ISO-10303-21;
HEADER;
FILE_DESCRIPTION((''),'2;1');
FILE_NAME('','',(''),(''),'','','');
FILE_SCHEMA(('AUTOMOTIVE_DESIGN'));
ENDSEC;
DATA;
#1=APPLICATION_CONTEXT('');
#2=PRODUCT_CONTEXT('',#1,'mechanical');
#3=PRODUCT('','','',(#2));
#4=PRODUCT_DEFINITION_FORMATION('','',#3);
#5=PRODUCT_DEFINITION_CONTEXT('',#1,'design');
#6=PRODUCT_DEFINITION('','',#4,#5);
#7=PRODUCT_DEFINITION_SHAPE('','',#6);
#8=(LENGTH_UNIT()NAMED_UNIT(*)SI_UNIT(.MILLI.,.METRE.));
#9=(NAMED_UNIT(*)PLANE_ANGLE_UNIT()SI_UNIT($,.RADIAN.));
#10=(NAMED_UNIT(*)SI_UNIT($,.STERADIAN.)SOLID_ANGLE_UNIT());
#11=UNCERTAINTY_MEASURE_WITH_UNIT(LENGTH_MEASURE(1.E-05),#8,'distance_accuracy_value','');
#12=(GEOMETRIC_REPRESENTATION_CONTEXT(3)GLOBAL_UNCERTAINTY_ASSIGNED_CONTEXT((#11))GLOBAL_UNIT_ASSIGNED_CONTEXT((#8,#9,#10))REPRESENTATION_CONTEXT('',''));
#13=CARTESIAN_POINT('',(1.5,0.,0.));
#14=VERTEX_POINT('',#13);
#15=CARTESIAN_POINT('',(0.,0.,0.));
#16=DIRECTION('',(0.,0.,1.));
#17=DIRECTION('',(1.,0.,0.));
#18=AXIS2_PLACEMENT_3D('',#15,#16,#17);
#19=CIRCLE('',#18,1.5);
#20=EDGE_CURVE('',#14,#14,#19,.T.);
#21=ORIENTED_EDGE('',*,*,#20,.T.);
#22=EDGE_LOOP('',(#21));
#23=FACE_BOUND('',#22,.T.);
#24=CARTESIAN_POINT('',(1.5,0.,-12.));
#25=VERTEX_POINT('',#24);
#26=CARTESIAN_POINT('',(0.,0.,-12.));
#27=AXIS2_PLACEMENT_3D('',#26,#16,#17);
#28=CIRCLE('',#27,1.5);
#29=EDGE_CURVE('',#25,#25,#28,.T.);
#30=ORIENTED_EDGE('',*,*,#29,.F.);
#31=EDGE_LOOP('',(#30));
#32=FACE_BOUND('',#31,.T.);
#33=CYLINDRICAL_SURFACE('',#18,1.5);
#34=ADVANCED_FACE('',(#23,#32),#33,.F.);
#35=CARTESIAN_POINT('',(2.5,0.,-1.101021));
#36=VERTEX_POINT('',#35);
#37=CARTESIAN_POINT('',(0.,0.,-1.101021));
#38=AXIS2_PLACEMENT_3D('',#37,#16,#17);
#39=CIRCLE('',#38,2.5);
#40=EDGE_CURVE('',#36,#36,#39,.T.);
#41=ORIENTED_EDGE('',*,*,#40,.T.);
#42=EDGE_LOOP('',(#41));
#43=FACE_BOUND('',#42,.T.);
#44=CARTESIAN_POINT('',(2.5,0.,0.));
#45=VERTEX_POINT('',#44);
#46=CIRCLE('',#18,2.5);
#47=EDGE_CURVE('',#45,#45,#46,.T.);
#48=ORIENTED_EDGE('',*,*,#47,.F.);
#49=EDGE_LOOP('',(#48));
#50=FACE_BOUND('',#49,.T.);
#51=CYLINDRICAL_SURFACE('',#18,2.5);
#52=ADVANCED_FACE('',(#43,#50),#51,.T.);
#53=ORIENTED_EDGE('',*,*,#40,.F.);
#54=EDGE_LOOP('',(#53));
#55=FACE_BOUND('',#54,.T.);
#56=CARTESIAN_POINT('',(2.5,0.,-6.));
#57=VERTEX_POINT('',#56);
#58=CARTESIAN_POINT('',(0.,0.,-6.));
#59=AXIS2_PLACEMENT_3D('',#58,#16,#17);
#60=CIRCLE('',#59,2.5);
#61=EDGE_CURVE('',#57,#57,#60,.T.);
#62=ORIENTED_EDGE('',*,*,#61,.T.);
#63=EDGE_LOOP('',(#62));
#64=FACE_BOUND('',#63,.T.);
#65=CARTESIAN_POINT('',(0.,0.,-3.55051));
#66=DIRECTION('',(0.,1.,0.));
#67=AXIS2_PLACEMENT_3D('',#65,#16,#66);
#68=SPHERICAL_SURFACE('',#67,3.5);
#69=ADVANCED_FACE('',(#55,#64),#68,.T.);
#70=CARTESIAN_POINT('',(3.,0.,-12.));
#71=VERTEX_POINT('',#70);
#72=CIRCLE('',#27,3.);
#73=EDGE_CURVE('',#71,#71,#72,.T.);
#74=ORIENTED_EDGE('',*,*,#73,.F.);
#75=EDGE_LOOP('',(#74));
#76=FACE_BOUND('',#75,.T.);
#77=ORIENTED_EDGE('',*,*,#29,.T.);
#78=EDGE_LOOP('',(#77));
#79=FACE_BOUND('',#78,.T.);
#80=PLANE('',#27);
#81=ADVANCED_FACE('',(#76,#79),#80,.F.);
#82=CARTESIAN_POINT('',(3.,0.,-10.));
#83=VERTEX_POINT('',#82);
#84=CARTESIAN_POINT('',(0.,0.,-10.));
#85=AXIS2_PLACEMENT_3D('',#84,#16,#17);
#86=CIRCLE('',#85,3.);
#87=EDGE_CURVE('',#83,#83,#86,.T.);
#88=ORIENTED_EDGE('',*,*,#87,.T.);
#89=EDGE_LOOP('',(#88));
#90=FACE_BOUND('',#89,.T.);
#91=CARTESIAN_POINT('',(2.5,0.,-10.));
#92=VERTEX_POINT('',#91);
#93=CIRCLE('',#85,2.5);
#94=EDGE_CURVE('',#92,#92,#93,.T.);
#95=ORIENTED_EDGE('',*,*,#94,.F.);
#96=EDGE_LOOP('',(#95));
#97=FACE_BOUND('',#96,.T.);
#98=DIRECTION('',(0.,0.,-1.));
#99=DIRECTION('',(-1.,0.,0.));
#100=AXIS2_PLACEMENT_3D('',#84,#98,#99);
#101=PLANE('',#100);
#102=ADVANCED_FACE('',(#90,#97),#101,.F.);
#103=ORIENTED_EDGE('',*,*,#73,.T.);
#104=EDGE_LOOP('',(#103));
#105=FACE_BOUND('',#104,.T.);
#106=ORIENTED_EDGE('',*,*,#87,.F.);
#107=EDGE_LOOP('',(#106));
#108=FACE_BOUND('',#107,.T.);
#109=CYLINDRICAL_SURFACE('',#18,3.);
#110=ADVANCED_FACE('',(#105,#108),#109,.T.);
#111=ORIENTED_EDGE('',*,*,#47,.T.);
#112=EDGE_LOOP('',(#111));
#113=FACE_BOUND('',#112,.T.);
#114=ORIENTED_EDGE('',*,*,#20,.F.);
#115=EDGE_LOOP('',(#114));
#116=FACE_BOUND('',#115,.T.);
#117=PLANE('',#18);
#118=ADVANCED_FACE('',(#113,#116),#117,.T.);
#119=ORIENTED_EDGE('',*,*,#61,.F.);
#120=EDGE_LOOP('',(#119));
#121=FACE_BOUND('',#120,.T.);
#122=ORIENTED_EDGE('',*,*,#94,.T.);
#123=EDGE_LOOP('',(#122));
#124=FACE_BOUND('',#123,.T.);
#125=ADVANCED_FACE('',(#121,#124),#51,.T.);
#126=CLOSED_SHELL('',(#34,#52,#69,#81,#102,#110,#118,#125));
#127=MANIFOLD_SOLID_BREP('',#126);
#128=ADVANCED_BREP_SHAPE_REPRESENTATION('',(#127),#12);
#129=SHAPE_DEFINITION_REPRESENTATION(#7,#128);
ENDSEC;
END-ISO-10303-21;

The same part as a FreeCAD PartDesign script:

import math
import FreeCAD as App
import Part
import Sketcher

V = App.Vector
Q = App.Units.Quantity

doc = App.newDocument("Part")
body = doc.addObject("PartDesign::Body", "Body")

sketch1 = body.newObject("Sketcher::SketchObject", "Sketch")
sketch1.AttachmentSupport = (doc.getObject("YZ_Plane"), [""])
sketch1.MapMode = "FlatFace"
sketch1.addGeometry(Part.LineSegment(V(1.5, -12, 0), V(3, -12, 0)), False)
sketch1.addGeometry(Part.LineSegment(V(3, -12, 0), V(3, -10, 0)), False)
sketch1.addGeometry(Part.LineSegment(V(3, -10, 0), V(2.5, -10, 0)), False)
sketch1.addGeometry(Part.LineSegment(V(2.5, -10, 0), V(2.5, -6, 0)), False)
sketch1.addGeometry(Part.ArcOfCircle(Part.Circle(V(0, -3.6, 0), V(0, 0, 1), 3.5), math.radians(-44), math.radians(44)), False)
sketch1.addGeometry(Part.LineSegment(V(2.5, -1.1, 0), V(2.5, 0, 0)), False)
sketch1.addGeometry(Part.LineSegment(V(2.5, 0, 0), V(1.5, 0, 0)), False)
sketch1.addGeometry(Part.LineSegment(V(1.5, 0, 0), V(1.5, -12, 0)), False)
sketch1.addConstraint(Sketcher.Constraint("Coincident", 0, 2, 1, 1))
sketch1.addConstraint(Sketcher.Constraint("Coincident", 1, 2, 2, 1))
sketch1.addConstraint(Sketcher.Constraint("Coincident", 2, 2, 3, 1))
sketch1.addConstraint(Sketcher.Constraint("Coincident", 3, 2, 4, 1))
sketch1.addConstraint(Sketcher.Constraint("Coincident", 4, 2, 5, 1))
sketch1.addConstraint(Sketcher.Constraint("Coincident", 5, 2, 6, 1))
sketch1.addConstraint(Sketcher.Constraint("Coincident", 6, 2, 7, 1))
sketch1.addConstraint(Sketcher.Constraint("Coincident", 7, 2, 0, 1))
sketch1.addConstraint(Sketcher.Constraint("Horizontal", 0))
sketch1.addConstraint(Sketcher.Constraint("Vertical", 1))
sketch1.addConstraint(Sketcher.Constraint("Horizontal", 2))
sketch1.addConstraint(Sketcher.Constraint("Vertical", 3))
sketch1.addConstraint(Sketcher.Constraint("Vertical", 5))
sketch1.addConstraint(Sketcher.Constraint("Horizontal", 6))
sketch1.addConstraint(Sketcher.Constraint("Vertical", 7))
sketch1.addConstraint(Sketcher.Constraint("PointOnObject", 4, 3, -2))
sketch1.addConstraint(Sketcher.Constraint("PointOnObject", 5, 2, -1))
sketch1.addConstraint(Sketcher.Constraint("Vertical", 3, 2, 4, 2))
sketch1.addConstraint(Sketcher.Constraint("Radius", 4, Q("3.5 mm")))
sketch1.addConstraint(Sketcher.Constraint("DistanceX", 6, 2, 6, 1, Q("1 mm")))
sketch1.addConstraint(Sketcher.Constraint("DistanceY", 1, 1, 1, 2, Q("2 mm")))
sketch1.addConstraint(Sketcher.Constraint("DistanceY", 3, 1, 3, 2, Q("4 mm")))
sketch1.addConstraint(Sketcher.Constraint("DistanceY", 7, 2, 7, 1, Q("12 mm")))
sketch1.addConstraint(Sketcher.Constraint("DistanceX", 0, 1, 0, 2, Q("1.5 mm")))
sketch1.addConstraint(Sketcher.Constraint("DistanceX", -1, 1, 0, 2, Q("3 mm")))
revolution = body.newObject("PartDesign::Revolution", "Revolution")
revolution.Profile = sketch1
revolution.ReferenceAxis = (sketch1, ["V_Axis"])
revolution.Angle = 360

doc.recompute()
